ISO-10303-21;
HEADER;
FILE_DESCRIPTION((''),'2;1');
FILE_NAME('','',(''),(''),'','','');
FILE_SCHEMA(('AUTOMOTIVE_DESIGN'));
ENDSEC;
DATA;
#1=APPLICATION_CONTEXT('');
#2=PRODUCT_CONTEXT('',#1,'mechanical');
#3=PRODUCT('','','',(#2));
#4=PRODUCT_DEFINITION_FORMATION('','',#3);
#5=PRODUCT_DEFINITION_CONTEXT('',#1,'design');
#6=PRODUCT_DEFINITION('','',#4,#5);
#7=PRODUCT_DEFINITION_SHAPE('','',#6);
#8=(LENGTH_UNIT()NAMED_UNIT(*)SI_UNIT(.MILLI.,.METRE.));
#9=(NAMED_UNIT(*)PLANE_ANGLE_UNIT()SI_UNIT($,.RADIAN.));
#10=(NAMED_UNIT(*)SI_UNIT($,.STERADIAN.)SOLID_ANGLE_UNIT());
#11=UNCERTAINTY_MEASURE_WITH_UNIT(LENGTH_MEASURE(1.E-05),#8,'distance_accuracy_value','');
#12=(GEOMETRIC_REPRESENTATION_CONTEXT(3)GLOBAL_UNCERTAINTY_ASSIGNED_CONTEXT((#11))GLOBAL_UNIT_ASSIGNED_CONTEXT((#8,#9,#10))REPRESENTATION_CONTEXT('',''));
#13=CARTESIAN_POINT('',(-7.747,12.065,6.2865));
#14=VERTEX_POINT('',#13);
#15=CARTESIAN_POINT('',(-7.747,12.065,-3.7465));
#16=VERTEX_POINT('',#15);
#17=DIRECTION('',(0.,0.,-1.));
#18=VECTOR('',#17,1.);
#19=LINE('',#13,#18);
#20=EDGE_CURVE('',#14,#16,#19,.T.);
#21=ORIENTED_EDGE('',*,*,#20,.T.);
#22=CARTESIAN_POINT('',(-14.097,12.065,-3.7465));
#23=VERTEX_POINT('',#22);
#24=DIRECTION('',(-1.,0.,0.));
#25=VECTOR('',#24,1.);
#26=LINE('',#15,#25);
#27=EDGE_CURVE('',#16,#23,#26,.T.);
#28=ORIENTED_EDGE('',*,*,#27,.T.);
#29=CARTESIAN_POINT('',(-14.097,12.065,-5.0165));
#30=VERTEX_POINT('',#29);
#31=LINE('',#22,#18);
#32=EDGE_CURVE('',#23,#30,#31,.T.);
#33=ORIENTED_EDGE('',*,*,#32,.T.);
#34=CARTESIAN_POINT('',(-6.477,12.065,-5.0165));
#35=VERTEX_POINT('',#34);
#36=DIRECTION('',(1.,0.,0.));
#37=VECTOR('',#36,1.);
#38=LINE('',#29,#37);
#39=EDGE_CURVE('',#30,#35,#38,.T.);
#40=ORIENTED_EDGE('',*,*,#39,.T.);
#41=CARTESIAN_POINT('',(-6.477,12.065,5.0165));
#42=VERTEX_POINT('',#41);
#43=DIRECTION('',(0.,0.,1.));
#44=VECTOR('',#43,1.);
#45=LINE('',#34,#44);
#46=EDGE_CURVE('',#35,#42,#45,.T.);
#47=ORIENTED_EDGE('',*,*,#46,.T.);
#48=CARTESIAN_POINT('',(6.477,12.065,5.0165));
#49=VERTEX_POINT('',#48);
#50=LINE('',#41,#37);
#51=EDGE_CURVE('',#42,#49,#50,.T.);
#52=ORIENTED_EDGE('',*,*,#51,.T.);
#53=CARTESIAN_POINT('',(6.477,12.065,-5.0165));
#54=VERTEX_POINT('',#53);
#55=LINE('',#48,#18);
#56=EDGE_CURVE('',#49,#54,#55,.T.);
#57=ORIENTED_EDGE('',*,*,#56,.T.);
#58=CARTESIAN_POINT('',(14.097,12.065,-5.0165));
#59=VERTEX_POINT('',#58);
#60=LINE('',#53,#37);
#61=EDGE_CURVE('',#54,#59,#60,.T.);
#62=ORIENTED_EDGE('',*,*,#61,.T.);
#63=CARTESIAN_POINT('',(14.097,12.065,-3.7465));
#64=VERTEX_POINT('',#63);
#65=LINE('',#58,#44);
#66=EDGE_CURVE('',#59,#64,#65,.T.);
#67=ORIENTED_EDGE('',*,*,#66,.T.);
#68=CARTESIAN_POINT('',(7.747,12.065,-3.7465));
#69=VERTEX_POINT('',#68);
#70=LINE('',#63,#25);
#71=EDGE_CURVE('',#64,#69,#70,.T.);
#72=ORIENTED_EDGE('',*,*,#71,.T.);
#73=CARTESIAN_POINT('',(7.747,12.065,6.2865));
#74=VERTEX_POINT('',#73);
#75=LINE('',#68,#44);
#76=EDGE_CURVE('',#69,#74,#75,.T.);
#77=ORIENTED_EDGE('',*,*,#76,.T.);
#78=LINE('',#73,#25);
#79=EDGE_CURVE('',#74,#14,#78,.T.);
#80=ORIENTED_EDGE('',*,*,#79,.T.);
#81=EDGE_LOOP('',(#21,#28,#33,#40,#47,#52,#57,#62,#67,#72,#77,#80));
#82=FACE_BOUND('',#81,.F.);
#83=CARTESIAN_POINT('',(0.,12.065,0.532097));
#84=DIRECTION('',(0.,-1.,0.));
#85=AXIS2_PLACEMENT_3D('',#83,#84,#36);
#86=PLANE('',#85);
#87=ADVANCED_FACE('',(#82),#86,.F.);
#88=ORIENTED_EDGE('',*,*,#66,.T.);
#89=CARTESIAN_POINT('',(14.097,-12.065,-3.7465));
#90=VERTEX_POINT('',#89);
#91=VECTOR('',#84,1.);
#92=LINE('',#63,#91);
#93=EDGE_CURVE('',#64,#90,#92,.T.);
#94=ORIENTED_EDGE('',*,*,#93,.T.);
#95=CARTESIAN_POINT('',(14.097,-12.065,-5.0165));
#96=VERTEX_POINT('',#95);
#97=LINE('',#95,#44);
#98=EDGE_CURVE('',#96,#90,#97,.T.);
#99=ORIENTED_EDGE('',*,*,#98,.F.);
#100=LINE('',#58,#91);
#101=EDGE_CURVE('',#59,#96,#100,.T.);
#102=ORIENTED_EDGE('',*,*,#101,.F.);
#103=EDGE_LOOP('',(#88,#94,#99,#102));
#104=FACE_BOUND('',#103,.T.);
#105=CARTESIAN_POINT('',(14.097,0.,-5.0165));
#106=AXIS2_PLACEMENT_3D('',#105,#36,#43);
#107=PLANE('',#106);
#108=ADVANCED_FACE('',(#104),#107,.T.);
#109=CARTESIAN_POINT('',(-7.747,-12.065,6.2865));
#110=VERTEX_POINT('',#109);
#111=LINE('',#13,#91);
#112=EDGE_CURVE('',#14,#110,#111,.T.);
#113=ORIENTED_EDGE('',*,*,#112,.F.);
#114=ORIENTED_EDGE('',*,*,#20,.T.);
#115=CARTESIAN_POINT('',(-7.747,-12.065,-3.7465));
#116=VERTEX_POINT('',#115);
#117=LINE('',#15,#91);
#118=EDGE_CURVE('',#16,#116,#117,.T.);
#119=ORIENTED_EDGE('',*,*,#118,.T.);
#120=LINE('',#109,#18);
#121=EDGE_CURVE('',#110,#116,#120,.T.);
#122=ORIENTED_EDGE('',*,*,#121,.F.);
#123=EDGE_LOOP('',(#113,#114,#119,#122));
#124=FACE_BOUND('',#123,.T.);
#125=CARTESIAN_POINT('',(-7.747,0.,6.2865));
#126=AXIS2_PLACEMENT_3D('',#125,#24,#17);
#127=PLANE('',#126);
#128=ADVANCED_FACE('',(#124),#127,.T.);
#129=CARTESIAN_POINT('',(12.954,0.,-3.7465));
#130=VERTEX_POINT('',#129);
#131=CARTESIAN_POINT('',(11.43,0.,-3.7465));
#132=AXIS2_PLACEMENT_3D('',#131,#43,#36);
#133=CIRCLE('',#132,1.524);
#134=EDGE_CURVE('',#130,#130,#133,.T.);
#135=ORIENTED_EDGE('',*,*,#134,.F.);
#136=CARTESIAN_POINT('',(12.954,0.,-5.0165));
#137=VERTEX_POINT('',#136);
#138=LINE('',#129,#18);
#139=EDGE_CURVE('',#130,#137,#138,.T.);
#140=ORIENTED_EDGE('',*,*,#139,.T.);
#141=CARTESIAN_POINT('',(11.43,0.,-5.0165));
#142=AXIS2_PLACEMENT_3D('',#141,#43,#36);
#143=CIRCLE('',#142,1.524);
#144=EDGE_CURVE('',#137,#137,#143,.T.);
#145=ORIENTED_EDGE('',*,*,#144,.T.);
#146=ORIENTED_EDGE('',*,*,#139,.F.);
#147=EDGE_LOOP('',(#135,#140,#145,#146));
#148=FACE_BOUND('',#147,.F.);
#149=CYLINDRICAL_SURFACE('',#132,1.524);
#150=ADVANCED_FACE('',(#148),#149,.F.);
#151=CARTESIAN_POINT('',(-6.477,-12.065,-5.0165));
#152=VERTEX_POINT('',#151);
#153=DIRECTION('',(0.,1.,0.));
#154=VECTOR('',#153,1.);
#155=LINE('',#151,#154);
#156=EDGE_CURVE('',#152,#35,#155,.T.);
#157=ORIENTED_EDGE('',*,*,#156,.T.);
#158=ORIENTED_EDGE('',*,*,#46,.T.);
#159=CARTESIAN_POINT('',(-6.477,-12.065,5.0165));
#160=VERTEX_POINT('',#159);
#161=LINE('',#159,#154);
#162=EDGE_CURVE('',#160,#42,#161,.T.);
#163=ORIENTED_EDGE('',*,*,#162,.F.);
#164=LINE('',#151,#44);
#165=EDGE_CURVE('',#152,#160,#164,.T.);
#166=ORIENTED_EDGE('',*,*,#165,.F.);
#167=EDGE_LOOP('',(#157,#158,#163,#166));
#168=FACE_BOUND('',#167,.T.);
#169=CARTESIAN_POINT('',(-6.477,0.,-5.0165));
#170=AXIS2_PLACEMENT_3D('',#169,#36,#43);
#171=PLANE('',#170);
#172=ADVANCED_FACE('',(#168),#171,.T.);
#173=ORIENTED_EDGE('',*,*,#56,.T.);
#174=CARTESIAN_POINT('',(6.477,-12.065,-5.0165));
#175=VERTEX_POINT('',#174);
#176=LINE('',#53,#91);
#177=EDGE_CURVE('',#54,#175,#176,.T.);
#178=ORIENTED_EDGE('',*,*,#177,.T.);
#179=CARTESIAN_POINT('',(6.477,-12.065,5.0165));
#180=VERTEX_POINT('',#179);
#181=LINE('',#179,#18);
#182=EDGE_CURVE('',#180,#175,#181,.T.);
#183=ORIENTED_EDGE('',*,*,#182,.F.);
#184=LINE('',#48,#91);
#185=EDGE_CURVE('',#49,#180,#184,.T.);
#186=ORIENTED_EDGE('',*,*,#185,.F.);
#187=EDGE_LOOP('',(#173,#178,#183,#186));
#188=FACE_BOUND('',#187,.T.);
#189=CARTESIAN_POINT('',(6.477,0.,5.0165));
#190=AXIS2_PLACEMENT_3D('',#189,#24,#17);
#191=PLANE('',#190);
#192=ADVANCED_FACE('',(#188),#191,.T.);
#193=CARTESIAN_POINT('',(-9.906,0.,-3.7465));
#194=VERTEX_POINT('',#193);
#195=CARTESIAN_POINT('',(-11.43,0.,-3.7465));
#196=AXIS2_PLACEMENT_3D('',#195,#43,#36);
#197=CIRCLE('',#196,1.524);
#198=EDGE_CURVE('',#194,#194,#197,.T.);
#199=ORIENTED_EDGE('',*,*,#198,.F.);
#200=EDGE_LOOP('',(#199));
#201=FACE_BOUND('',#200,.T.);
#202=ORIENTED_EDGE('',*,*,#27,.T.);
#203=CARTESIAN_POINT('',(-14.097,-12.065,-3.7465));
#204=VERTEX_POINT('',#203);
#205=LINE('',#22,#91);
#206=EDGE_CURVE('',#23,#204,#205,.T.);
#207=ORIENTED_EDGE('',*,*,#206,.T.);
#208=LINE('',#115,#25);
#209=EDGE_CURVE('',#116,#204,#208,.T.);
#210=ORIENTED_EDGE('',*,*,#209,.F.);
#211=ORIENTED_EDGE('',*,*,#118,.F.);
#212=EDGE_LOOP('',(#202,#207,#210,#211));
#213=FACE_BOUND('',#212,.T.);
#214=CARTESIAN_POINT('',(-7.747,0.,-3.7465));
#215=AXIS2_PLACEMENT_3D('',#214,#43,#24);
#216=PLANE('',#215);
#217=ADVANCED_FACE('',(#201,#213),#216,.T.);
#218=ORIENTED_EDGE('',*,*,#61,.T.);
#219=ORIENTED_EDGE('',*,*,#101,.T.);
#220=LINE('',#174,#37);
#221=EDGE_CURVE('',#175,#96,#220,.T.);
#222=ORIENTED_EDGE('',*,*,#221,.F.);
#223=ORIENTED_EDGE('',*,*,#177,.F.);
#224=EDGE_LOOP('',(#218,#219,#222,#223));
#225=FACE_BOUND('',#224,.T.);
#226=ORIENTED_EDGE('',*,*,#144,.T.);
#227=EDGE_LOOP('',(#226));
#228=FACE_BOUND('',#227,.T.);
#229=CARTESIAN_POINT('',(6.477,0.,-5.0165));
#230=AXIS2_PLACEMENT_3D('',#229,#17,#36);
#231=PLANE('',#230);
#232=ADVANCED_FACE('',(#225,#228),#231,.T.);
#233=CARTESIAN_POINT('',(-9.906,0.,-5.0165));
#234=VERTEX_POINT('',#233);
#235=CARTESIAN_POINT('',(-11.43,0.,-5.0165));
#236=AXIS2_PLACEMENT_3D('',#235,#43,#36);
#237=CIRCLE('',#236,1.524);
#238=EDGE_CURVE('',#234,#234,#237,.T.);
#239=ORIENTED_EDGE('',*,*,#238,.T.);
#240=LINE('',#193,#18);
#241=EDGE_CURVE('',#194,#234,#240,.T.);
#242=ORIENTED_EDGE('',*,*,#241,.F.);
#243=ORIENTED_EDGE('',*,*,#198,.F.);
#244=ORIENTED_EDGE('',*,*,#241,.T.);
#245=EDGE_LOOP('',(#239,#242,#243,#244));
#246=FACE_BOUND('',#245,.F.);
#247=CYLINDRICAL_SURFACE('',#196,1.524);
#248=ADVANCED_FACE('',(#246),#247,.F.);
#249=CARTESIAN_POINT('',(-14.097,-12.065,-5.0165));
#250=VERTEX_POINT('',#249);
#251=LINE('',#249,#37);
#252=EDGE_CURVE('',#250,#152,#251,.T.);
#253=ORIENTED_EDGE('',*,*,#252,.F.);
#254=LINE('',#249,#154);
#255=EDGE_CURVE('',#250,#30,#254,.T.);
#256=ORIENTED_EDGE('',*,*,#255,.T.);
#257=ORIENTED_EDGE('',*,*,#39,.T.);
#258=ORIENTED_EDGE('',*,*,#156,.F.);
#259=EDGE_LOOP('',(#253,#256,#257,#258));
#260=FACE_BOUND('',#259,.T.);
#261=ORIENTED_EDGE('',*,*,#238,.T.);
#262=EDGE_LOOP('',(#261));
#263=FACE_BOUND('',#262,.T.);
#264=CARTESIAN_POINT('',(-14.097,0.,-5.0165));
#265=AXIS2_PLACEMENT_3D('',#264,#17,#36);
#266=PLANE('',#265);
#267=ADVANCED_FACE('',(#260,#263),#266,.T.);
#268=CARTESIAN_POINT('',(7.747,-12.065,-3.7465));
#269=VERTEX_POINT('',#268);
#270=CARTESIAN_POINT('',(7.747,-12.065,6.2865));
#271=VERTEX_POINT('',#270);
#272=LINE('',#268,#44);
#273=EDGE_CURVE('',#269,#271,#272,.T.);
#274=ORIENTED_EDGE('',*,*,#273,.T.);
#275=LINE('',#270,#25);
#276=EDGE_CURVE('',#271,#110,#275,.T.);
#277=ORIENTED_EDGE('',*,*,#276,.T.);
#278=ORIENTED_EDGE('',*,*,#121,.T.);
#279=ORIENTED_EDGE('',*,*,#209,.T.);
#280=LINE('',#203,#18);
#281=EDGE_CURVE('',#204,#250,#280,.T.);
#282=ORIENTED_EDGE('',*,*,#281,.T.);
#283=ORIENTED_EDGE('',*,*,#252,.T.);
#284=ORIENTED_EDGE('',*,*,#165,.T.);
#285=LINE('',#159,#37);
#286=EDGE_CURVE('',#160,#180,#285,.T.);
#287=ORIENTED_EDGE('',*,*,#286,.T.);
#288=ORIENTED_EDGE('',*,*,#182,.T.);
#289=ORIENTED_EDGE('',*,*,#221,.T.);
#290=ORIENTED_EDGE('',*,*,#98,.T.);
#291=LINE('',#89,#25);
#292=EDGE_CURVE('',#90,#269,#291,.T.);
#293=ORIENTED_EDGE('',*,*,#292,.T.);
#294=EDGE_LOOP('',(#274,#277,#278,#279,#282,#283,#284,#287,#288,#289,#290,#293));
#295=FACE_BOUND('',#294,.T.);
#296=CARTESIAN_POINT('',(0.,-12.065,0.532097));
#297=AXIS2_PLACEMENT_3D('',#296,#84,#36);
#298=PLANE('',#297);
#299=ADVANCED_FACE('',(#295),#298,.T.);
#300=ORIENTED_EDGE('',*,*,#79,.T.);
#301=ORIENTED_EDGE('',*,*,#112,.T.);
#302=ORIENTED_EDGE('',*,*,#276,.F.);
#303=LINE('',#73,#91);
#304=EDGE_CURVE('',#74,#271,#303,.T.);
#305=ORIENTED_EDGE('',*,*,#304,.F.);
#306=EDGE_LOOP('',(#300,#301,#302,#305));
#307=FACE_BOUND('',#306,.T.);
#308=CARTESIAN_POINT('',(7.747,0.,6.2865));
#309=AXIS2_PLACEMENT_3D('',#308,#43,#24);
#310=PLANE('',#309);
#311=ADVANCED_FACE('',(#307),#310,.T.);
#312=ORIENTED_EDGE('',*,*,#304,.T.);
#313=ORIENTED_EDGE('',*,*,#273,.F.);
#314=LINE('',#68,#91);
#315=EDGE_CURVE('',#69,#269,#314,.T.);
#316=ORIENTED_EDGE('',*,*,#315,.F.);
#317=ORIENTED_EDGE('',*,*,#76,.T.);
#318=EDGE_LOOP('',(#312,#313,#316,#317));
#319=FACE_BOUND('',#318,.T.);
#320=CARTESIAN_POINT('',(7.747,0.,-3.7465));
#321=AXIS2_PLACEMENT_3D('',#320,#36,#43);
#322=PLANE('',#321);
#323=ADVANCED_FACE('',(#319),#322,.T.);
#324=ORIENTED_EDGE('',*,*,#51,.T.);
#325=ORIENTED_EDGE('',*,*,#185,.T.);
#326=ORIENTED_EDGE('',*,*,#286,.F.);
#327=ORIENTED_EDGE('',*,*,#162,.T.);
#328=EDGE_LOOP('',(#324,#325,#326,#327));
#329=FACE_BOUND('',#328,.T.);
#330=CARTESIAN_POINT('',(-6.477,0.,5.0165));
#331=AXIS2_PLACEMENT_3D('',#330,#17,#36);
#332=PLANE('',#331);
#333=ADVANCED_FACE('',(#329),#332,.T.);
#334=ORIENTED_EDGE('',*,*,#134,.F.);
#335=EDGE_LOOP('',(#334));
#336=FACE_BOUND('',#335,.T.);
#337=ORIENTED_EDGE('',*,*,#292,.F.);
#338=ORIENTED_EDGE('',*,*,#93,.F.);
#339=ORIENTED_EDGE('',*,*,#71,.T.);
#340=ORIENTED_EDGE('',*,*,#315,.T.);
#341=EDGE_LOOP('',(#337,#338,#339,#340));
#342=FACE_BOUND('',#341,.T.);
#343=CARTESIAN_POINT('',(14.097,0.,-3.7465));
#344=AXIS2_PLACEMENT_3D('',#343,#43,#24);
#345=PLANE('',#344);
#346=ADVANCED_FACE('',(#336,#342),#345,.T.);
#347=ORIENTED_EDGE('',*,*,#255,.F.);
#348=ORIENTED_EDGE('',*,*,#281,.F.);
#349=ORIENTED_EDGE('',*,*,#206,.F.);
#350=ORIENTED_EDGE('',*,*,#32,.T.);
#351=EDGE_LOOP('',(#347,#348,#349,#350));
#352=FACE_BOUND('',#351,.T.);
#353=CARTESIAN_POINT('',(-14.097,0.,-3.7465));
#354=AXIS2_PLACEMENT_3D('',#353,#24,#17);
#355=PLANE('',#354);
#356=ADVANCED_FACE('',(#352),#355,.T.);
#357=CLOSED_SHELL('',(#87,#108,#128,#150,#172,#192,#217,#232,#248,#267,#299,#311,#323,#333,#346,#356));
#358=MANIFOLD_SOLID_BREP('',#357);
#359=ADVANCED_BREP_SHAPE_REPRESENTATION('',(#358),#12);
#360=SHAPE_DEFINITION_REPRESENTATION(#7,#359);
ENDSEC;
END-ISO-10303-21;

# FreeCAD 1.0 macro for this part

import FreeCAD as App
import Part
import Sketcher
Q = App.Units.Quantity

doc = App.newDocument("Part")
body = doc.addObject("PartDesign::Body", "Body")

# Sketch on XZ plane
sketch1 = body.newObject("Sketcher::SketchObject", "Sketch")
sketch1.AttachmentSupport = (doc.getObject("XZ_Plane"), [""])
sketch1.MapMode = "FlatFace"
sketch1.addGeometry(Part.LineSegment(App.Vector(-6.5, 5, 0), App.Vector(6.5, 5, 0)), False)
sketch1.addGeometry(Part.LineSegment(App.Vector(6.5, 5, 0), App.Vector(6.5, -5, 0)), False)
sketch1.addGeometry(Part.LineSegment(App.Vector(6.5, -5, 0), App.Vector(14.1, -5, 0)), False)
sketch1.addGeometry(Part.LineSegment(App.Vector(14.1, -5, 0), App.Vector(14.1, -3.7, 0)), False)
sketch1.addGeometry(Part.LineSegment(App.Vector(14.1, -3.7, 0), App.Vector(7.7, -3.7, 0)), False)
sketch1.addGeometry(Part.LineSegment(App.Vector(7.7, -3.7, 0), App.Vector(7.7, 6.3, 0)), False)
sketch1.addGeometry(Part.LineSegment(App.Vector(7.7, 6.3, 0), App.Vector(-7.7, 6.3, 0)), False)
sketch1.addGeometry(Part.LineSegment(App.Vector(-7.7, 6.3, 0), App.Vector(-7.7, -3.7, 0)), False)
sketch1.addGeometry(Part.LineSegment(App.Vector(-7.7, -3.7, 0), App.Vector(-14.1, -3.7, 0)), False)
sketch1.addGeometry(Part.LineSegment(App.Vector(-14.1, -3.7, 0), App.Vector(-14.1, -5, 0)), False)
sketch1.addGeometry(Part.LineSegment(App.Vector(-14.1, -5, 0), App.Vector(-6.5, -5, 0)), False)
sketch1.addGeometry(Part.LineSegment(App.Vector(-6.5, -5, 0), App.Vector(-6.5, 5, 0)), False)
sketch1.addConstraint(Sketcher.Constraint("Coincident", 0, 2, 1, 1))
sketch1.addConstraint(Sketcher.Constraint("Coincident", 1, 2, 2, 1))
sketch1.addConstraint(Sketcher.Constraint("Coincident", 2, 2, 3, 1))
sketch1.addConstraint(Sketcher.Constraint("Coincident", 3, 2, 4, 1))
sketch1.addConstraint(Sketcher.Constraint("Coincident", 4, 2, 5, 1))
sketch1.addConstraint(Sketcher.Constraint("Coincident", 5, 2, 6, 1))
sketch1.addConstraint(Sketcher.Constraint("Coincident", 6, 2, 7, 1))
sketch1.addConstraint(Sketcher.Constraint("Coincident", 7, 2, 8, 1))
sketch1.addConstraint(Sketcher.Constraint("Coincident", 8, 2, 9, 1))
sketch1.addConstraint(Sketcher.Constraint("Coincident", 9, 2, 10, 1))
sketch1.addConstraint(Sketcher.Constraint("Coincident", 10, 2, 11, 1))
sketch1.addConstraint(Sketcher.Constraint("Coincident", 11, 2, 0, 1))
sketch1.addConstraint(Sketcher.Constraint("Horizontal", 0))
sketch1.addConstraint(Sketcher.Constraint("Vertical", 1))
sketch1.addConstraint(Sketcher.Constraint("Horizontal", 2))
sketch1.addConstraint(Sketcher.Constraint("Vertical", 3))
sketch1.addConstraint(Sketcher.Constraint("Horizontal", 4))
sketch1.addConstraint(Sketcher.Constraint("Vertical", 5))
sketch1.addConstraint(Sketcher.Constraint("Horizontal", 6))
sketch1.addConstraint(Sketcher.Constraint("Vertical", 7))
sketch1.addConstraint(Sketcher.Constraint("Horizontal", 8))
sketch1.addConstraint(Sketcher.Constraint("Vertical", 9))
sketch1.addConstraint(Sketcher.Constraint("Horizontal", 10))
sketch1.addConstraint(Sketcher.Constraint("Vertical", 11))
sketch1.addConstraint(Sketcher.Constraint("Symmetric", 0, 2, 10, 2, -1, 1))
sketch1.addConstraint(Sketcher.Constraint("Symmetric", 4, 2, 7, 2, -2))
sketch1.addConstraint(Sketcher.Constraint("Symmetric", 2, 2, 9, 2, -2))
sketch1.addConstraint(Sketcher.Constraint("Equal", 1, 5))
sketch1.addConstraint(Sketcher.Constraint("DistanceX", 2, 1, 2, 2, Q("0.3 in")))
sketch1.addConstraint(Sketcher.Constraint("DistanceX", 0, 1, 0, 2, Q("0.51 in")))
sketch1.addConstraint(Sketcher.Constraint("DistanceX", 4, 2, 4, 1, Q("0.25 in")))
sketch1.addConstraint(Sketcher.Constraint("DistanceY", 3, 1, 3, 2, Q("0.05 in")))
sketch1.addConstraint(Sketcher.Constraint("DistanceY", 1, 2, 1, 1, Q("0.395 in")))
pad1 = body.newObject("PartDesign::Pad", "Pad")
pad1.Profile = sketch1
pad1.Length = Q("0.95 in")
pad1.Midplane = True

# Sketch on XY plane
sketch2 = body.newObject("Sketcher::SketchObject", "Sketch001")
sketch2.AttachmentSupport = (doc.getObject("XY_Plane"), [""])
sketch2.MapMode = "FlatFace"
sketch2.AttachmentOffset = App.Placement(App.Vector(0, 0, -0.1475 * 25.4), App.Rotation())
sketch2.addGeometry(Part.Circle(App.Vector(-11.4, 0, 0), App.Vector(0, 0, 1), 1.5), False)
sketch2.addGeometry(Part.Circle(App.Vector(11.4, 0, 0), App.Vector(0, 0, 1), 1.5), False)
sketch2.addConstraint(Sketcher.Constraint("Equal", 0, 1))
sketch2.addConstraint(Sketcher.Constraint("Symmetric", 0, 3, 1, 3, -1, 1))
sketch2.addConstraint(Sketcher.Constraint("PointOnObject", 0, 3, -1))
sketch2.addConstraint(Sketcher.Constraint("Diameter", 0, Q("0.12 in")))
sketch2.addConstraint(Sketcher.Constraint("DistanceX", 0, 3, 1, 3, Q("0.9 in")))
pocket1 = body.newObject("PartDesign::Pocket", "Pocket")
pocket1.Profile = sketch2
pocket1.Type = "ThroughAll"

doc.recompute()
